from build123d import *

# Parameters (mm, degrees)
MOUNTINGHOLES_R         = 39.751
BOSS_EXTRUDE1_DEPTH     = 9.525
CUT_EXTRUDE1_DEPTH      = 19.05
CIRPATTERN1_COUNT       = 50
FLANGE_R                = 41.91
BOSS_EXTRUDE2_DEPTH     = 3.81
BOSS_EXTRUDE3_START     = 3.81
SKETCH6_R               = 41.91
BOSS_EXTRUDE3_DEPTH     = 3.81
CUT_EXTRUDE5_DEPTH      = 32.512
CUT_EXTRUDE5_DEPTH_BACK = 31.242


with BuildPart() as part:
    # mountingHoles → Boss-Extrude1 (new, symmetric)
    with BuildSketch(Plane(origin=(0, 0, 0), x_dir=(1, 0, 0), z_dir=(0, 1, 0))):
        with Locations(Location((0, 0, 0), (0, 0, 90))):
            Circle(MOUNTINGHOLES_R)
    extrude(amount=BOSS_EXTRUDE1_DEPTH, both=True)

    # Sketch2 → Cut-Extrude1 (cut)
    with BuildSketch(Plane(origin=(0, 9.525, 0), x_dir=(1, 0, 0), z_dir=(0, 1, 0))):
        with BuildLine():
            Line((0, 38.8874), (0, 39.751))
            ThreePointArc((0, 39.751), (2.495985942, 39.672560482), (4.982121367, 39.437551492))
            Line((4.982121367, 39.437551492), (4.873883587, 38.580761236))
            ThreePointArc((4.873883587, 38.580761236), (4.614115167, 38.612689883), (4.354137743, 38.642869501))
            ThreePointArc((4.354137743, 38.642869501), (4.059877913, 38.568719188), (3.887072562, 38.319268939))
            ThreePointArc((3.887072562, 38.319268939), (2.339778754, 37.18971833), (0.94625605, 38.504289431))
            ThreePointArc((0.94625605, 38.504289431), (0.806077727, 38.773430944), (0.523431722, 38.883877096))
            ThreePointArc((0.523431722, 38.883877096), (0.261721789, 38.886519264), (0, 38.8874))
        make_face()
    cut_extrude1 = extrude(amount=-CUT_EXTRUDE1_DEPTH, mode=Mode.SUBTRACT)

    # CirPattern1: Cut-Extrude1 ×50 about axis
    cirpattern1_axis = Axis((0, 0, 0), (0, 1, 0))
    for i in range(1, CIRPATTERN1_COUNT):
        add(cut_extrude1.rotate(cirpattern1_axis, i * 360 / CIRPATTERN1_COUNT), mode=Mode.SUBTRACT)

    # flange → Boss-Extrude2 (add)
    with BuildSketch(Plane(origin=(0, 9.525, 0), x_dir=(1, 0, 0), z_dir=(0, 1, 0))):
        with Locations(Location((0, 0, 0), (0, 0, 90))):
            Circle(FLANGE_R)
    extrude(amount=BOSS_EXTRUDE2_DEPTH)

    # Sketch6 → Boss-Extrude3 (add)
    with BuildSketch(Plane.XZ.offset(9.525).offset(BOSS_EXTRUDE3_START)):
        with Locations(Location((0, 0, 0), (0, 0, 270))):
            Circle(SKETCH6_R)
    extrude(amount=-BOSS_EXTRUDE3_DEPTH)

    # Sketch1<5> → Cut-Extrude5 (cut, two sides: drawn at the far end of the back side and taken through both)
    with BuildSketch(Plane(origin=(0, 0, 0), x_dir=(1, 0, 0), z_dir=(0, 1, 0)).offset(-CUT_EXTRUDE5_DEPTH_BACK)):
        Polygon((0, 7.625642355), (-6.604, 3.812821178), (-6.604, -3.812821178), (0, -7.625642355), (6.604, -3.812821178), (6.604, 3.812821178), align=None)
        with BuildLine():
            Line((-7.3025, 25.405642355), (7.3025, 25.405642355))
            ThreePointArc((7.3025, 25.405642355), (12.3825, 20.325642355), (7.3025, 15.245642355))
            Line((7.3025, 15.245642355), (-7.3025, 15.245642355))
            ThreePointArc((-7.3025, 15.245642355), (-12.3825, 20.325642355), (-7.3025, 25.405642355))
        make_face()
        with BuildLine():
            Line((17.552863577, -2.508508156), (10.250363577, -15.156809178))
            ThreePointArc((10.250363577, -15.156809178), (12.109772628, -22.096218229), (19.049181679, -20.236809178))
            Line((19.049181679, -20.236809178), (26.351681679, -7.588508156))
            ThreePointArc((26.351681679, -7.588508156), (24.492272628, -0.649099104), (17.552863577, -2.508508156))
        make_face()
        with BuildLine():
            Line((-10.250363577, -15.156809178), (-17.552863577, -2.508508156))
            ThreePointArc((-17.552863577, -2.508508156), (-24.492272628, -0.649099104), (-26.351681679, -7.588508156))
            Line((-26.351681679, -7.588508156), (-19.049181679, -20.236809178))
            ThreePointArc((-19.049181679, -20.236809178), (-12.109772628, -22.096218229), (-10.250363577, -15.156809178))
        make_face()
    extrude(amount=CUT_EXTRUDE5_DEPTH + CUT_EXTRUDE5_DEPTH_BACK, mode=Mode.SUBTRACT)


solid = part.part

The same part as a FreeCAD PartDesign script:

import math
import FreeCAD as App
import Part
import Sketcher
from FreeCAD import Vector
Q = App.Units.Quantity


def add_polygon(sketch, points):
    """Adds a closed chain of lines whose ends are joined by coincident constraints."""
    first, n = sketch.GeometryCount, len(points)
    for a, b in zip(points, points[1:] + points[:1]):
        sketch.addGeometry(Part.LineSegment(App.Vector(*a, 0), App.Vector(*b, 0)), False)
    for i in range(n):
        sketch.addConstraint(Sketcher.Constraint("Coincident", first + i, 2, first + (i + 1) % n, 1))

doc = App.newDocument("Part")
body = doc.addObject("PartDesign::Body", "Body")

# Sketch on XZ plane
sketch1 = doc.addObject("Sketcher::SketchObject", "Sketch")
body.addObject(sketch1)
sketch1.AttachmentSupport = (doc.XZ_Plane, [""])
sketch1.MapMode = "FlatFace"
sketch1.addGeometry(Part.Circle(Vector(0, 0, 0), Vector(0, 0, 1), 39.751), False)
sketch1.addConstraint(Sketcher.Constraint("Coincident", 0, 3, -1, 1))
sketch1.addConstraint(Sketcher.Constraint("Diameter", 0, Q("3.13 in")))
pad1 = doc.addObject("PartDesign::Pad", "Pad")
body.addObject(pad1)
pad1.Profile = sketch1
pad1.Length = Q("0.75 in")
pad1.Midplane = True

# Sketch on XZ plane
sketch2 = doc.addObject("Sketcher::SketchObject", "Sketch001")
body.addObject(sketch2)
sketch2.AttachmentSupport = (doc.XZ_Plane, [""])
sketch2.MapMode = "FlatFace"
sketch2.AttachmentOffset = App.Placement(Vector(0, 0, -0.375 * 25.4), App.Rotation())
sketch2.addGeometry(Part.LineSegment(Vector(0, -39.751, 0), Vector(0, -38.8874, 0)), False)
sketch2.addGeometry(Part.ArcOfCircle(Part.Circle(Vector(0, 0.000005, 0), Vector(0, 0, 1), 38.887405), math.radians(-90), math.radians(-89.228765)), False)
sketch2.addGeometry(Part.ArcOfCircle(Part.Circle(Vector(0.51762, -38.452116, 0), Vector(0, 0, 1), 0.4318), math.radians(-89.228765), math.radians(-6.93985)), False)
sketch2.addGeometry(Part.ArcOfCircle(Part.Circle(Vector(2.433877, -38.685361, 0), Vector(0, 0, 1), 1.4986), math.radians(14.139849), math.radians(173.060151)), False)
sketch2.addGeometry(Part.ArcOfCircle(Part.Circle(Vector(4.30579, -38.213785, 0), Vector(0, 0, 1), 0.4318), math.radians(-165.86015), math.radians(-83.571235)), False)
sketch2.addGeometry(Part.ArcOfCircle(Part.Circle(Vector(0.000001, -0.000007, 0), Vector(0, 0, 1), 38.887393), math.radians(-83.571235), math.radians(-82.8)), False)
sketch2.addGeometry(Part.LineSegment(Vector(4.873884, -38.580761, 0), Vector(4.982121, -39.437551, 0)), False)
sketch2.addGeometry(Part.ArcOfCircle(Part.Circle(Vector(0, 0, 0), Vector(0, 0, 1), 39.751), math.radians(-90), math.radians(-82.8)), False)
sketch2.addConstraint(Sketcher.Constraint("Coincident", 0, 2, 1, 1))
sketch2.addConstraint(Sketcher.Constraint("Tangent", 1, 2, 2, 1))
sketch2.addConstraint(Sketcher.Constraint("Tangent", 2, 2, 3, 2))
sketch2.addConstraint(Sketcher.Constraint("Tangent", 3, 1, 4, 1))
sketch2.addConstraint(Sketcher.Constraint("Tangent", 4, 2, 5, 1))
sketch2.addConstraint(Sketcher.Constraint("Coincident", 5, 2, 6, 1))
sketch2.addConstraint(Sketcher.Constraint("Coincident", 6, 2, 7, 2))
sketch2.addConstraint(Sketcher.Constraint("Coincident", 7, 1, 0, 1))
sketch2.addConstraint(Sketcher.Constraint("Vertical", 0))
sketch2.addConstraint(Sketcher.Constraint("Coincident", 1, 3, -1, 1))
sketch2.addConstraint(Sketcher.Constraint("Coincident", 5, 3, -1, 1))
sketch2.addConstraint(Sketcher.Constraint("Coincident", 7, 3, -1, 1))
sketch2.addConstraint(Sketcher.Constraint("Equal", 2, 4))
sketch2.addConstraint(Sketcher.Constraint("PointOnObject", 0, 2, -2))
sketch2.addConstraint(Sketcher.Constraint("Radius", 1, Q("1.5310002 in")))
sketch2.addConstraint(Sketcher.Constraint("Radius", 2, Q("0.017 in")))
sketch2.addConstraint(Sketcher.Constraint("Radius", 3, Q("0.059 in")))
sketch2.addConstraint(Sketcher.Constraint("Radius", 7, Q("1.565 in")))
sketch2.addConstraint(Sketcher.Constraint("Angle", 6, Q("-82.8 deg")))
sketch2.addConstraint(Sketcher.Constraint("Distance", 6, Q("0.034 in")))
sketch2.addConstraint(Sketcher.Constraint("DistanceY", 4, 2, 3, 1, 0.323601))
sketch2.addConstraint(Sketcher.Constraint("DistanceY", 3, 3, 5, 2, 0.1046))
sketch2.addConstraint(Sketcher.Constraint("DistanceX", -1, 1, 2, 3, 0.51762))
pocket1 = doc.addObject("PartDesign::Pocket", "Pocket")
body.addObject(pocket1)
pocket1.Profile = sketch2
pocket1.Length = Q("0.75 in")
pocket1.Reversed = True
doc.recompute()

polarpattern = doc.addObject("PartDesign::PolarPattern", "PolarPattern")
body.addObject(polarpattern)
polarpattern.Originals = [pocket1]
polarpattern.Axis = (doc.Y_Axis, [""])
polarpattern.Angle = 360
polarpattern.Occurrences = 50
body.Tip = polarpattern

# Sketch on XZ plane
sketch3 = doc.addObject("Sketcher::SketchObject", "Sketch002")
body.addObject(sketch3)
sketch3.AttachmentSupport = (doc.XZ_Plane, [""])
sketch3.MapMode = "FlatFace"
sketch3.AttachmentOffset = App.Placement(Vector(0, 0, -0.375 * 25.4), App.Rotation())
sketch3.addGeometry(Part.Circle(Vector(0, 0, 0), Vector(0, 0, 1), 41.91), False)
sketch3.addConstraint(Sketcher.Constraint("Coincident", 0, 3, -1, 1))
sketch3.addConstraint(Sketcher.Constraint("Diameter", 0, Q("3.3 in")))
pad2 = doc.addObject("PartDesign::Pad", "Pad001")
body.addObject(pad2)
pad2.Profile = sketch3
pad2.Length = Q("0.15 in")
pad2.Reversed = True

# Sketch on XZ plane
sketch4 = doc.addObject("Sketcher::SketchObject", "Sketch003")
body.addObject(sketch4)
sketch4.AttachmentSupport = (doc.XZ_Plane, [""])
sketch4.MapMode = "FlatFace"
sketch4.AttachmentOffset = App.Placement(Vector(0, 0, 0.525 * 25.4), App.Rotation())
sketch4.addGeometry(Part.Circle(Vector(0, 0, 0), Vector(0, 0, 1), 41.91), False)
sketch4.addConstraint(Sketcher.Constraint("Coincident", 0, 3, -1, 1))
sketch4.addConstraint(Sketcher.Constraint("Diameter", 0, Q("3.3 in")))
pad3 = doc.addObject("PartDesign::Pad", "Pad002")
body.addObject(pad3)
pad3.Profile = sketch4
pad3.Length = Q("0.15 in")
pad3.Reversed = True

# Sketch on XZ plane
sketch5 = doc.addObject("Sketcher::SketchObject", "Sketch004")
body.addObject(sketch5)
sketch5.AttachmentSupport = (doc.XZ_Plane, [""])
sketch5.MapMode = "FlatFace"
add_polygon(sketch5, [(0, -7.625642), (-6.604, -3.812821), (-6.604, 3.812821), (0, 7.625642), (6.604, 3.812821), (6.604, -3.812821)])  # lines 0-5
sketch5.addGeometry(Part.LineSegment(Vector(7.3025, -25.405642, 0), Vector(-7.3025, -25.405642, 0)), False)  # 6
sketch5.addGeometry(Part.ArcOfCircle(Part.Circle(Vector(-7.3025, -20.325642, 0), Vector(0, 0, 1), 5.08), math.radians(90), math.radians(270)), False)  # 7
sketch5.addGeometry(Part.LineSegment(Vector(-7.3025, -15.245642, 0), Vector(7.3025, -15.245642, 0)), False)  # 8
sketch5.addGeometry(Part.ArcOfCircle(Part.Circle(Vector(7.3025, -20.325642, 0), Vector(0, 0, 1), 5.08), math.radians(-90), math.radians(90)), False)  # 9
sketch5.addGeometry(Part.LineSegment(Vector(17.552864, 2.508508, 0), Vector(10.250364, 15.156809, 0)), False)  # 10
sketch5.addGeometry(Part.ArcOfCircle(Part.Circle(Vector(14.649773, 17.696809, 0), Vector(0, 0, 1), 5.08), math.radians(30), math.radians(210)), False)  # 11
sketch5.addGeometry(Part.LineSegment(Vector(19.049182, 20.236809, 0), Vector(26.351682, 7.588508, 0)), False)  # 12
sketch5.addGeometry(Part.ArcOfCircle(Part.Circle(Vector(21.952273, 5.048508, 0), Vector(0, 0, 1), 5.08), math.radians(-150), math.radians(30)), False)  # 13
sketch5.addGeometry(Part.LineSegment(Vector(-10.250364, 15.156809, 0), Vector(-17.552864, 2.508508, 0)), False)  # 14
sketch5.addGeometry(Part.ArcOfCircle(Part.Circle(Vector(-21.952273, 5.048508, 0), Vector(0, 0, 1), 5.08), math.radians(150), math.radians(330)), False)  # 15
sketch5.addGeometry(Part.LineSegment(Vector(-26.351682, 7.588508, 0), Vector(-19.049182, 20.236809, 0)), False)  # 16
sketch5.addGeometry(Part.ArcOfCircle(Part.Circle(Vector(-14.649773, 17.696809, 0), Vector(0, 0, 1), 5.08), math.radians(-30), math.radians(150)), False)  # 17
sketch5.addConstraint(Sketcher.Constraint("Tangent", 6, 2, 7, 2))
sketch5.addConstraint(Sketcher.Constraint("Tangent", 7, 1, 8, 1))
sketch5.addConstraint(Sketcher.Constraint("Tangent", 8, 2, 9, 2))
sketch5.addConstraint(Sketcher.Constraint("Tangent", 9, 1, 6, 1))
sketch5.addConstraint(Sketcher.Constraint("Tangent", 10, 2, 11, 2))
sketch5.addConstraint(Sketcher.Constraint("Tangent", 11, 1, 12, 1))
sketch5.addConstraint(Sketcher.Constraint("Tangent", 12, 2, 13, 2))
sketch5.addConstraint(Sketcher.Constraint("Tangent", 13, 1, 10, 1))
sketch5.addConstraint(Sketcher.Constraint("Tangent", 14, 2, 15, 2))
sketch5.addConstraint(Sketcher.Constraint("Tangent", 15, 1, 16, 1))
sketch5.addConstraint(Sketcher.Constraint("Tangent", 16, 2, 17, 2))
sketch5.addConstraint(Sketcher.Constraint("Tangent", 17, 1, 14, 1))
sketch5.addConstraint(Sketcher.Constraint("Vertical", 1))
sketch5.addConstraint(Sketcher.Constraint("Vertical", 4))
sketch5.addConstraint(Sketcher.Constraint("Horizontal", 6))
sketch5.addConstraint(Sketcher.Constraint("Horizontal", 8))
sketch5.addConstraint(Sketcher.Constraint("Equal", 9, 11))
sketch5.addConstraint(Sketcher.Constraint("Equal", 11, 13))
sketch5.addConstraint(Sketcher.Constraint("Equal", 13, 15))
sketch5.addConstraint(Sketcher.Constraint("Equal", 15, 17))
sketch5.addConstraint(Sketcher.Constraint("Symmetric", 0, 2, 3, 2, -1, 1))
sketch5.addConstraint(Sketcher.Constraint("Symmetric", 2, 2, 5, 2, -1, 1))
sketch5.addConstraint(Sketcher.Constraint("Symmetric", 13, 3, 15, 3, -2))
sketch5.addConstraint(Sketcher.Constraint("Symmetric", 11, 3, 17, 3, -2))
sketch5.addConstraint(Sketcher.Constraint("PointOnObject", 2, 2, -2))
sketch5.addConstraint(Sketcher.Constraint("Parallel", 2, 5))
sketch5.addConstraint(Sketcher.Constraint("Perpendicular", 5, 10))
sketch5.addConstraint(Sketcher.Constraint("Perpendicular", 3, 14))
sketch5.addConstraint(Sketcher.Constraint("Radius", 7, Q("0.2 in")))
sketch5.addConstraint(Sketcher.Constraint("Angle", 0, Q("150 deg")))
sketch5.addConstraint(Sketcher.Constraint("DistanceY", 7, 3, 5, 2, Q("0.5 in")))
sketch5.addConstraint(Sketcher.Constraint("DistanceX", 6, 2, 6, 1, Q("0.575 in")))
sketch5.addConstraint(Sketcher.Constraint("DistanceX", 0, 2, -1, 1, Q("0.26 in")))
sketch5.addConstraint(Sketcher.Constraint("Distance", 10, Q("0.575 in")))
sketch5.addConstraint(Sketcher.Constraint("DistanceX", 7, 3, -1, 1, Q("0.2875 in")))
sketch5.addConstraint(Sketcher.Constraint("DistanceY", 1, 1, 1, 2, 7.625642))
sketch5.addConstraint(Sketcher.Constraint("DistanceY", -1, 1, 11, 3, 17.696809))
sketch5.addConstraint(Sketcher.Constraint("DistanceX", -1, 1, 11, 1, 19.049182))
pocket2 = doc.addObject("PartDesign::Pocket", "Pocket001")
body.addObject(pocket2)
pocket2.Profile = sketch5
pocket2.Type = "ThroughAll"
pocket2.Midplane = True

doc.recompute()
